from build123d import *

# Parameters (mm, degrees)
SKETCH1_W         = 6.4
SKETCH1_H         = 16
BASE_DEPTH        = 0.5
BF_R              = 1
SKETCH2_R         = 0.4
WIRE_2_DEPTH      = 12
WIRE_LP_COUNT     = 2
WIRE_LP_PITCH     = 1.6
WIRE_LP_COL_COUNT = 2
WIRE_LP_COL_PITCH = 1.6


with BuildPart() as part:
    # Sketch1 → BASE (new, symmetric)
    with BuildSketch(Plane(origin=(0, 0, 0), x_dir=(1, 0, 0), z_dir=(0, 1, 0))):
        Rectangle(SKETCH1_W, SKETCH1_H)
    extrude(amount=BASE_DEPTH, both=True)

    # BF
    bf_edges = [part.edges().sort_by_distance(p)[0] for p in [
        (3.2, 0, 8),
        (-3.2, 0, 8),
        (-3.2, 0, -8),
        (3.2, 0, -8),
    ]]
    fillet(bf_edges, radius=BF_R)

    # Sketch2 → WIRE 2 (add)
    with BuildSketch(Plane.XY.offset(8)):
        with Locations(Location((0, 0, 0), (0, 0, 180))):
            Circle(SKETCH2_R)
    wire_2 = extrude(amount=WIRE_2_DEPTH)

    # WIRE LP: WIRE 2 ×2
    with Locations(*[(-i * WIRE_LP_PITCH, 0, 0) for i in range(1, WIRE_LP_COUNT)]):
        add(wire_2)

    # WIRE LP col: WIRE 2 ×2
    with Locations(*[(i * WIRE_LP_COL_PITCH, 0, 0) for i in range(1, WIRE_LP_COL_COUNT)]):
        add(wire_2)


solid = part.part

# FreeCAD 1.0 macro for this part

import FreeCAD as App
import Part
import Sketcher
Q = App.Units.Quantity


def edges_at(feature, points):
    """Names of the edges that pass closest to the given points."""
    edges = feature.Shape.Edges
    near = lambda p: min(range(len(edges)), key=lambda i: edges[i].distToShape(Part.Vertex(*p))[0])
    return sorted({f"Edge{near(p) + 1}" for p in points})

doc = App.newDocument("Part")
body = doc.addObject("PartDesign::Body", "Body")

sketch1 = doc.addObject("Sketcher::SketchObject", "Sketch")
body.addObject(sketch1)
sketch1.AttachmentSupport = (doc.XZ_Plane, [""])
sketch1.MapMode = "FlatFace"
sketch1.addGeometry([
    Part.LineSegment(App.Vector(-3, -8, 0), App.Vector(-3, 8, 0)),
    Part.LineSegment(App.Vector(-3, 8, 0), App.Vector(3, 8, 0)),
    Part.LineSegment(App.Vector(3, 8, 0), App.Vector(3, -8, 0)),
    Part.LineSegment(App.Vector(3, -8, 0), App.Vector(-3, -8, 0)),
], False)
sketch1.addConstraint([
    Sketcher.Constraint("Coincident", 0, 2, 1, 1),
    Sketcher.Constraint("Coincident", 1, 2, 2, 1),
    Sketcher.Constraint("Coincident", 2, 2, 3, 1),
    Sketcher.Constraint("Coincident", 3, 2, 0, 1),
    Sketcher.Constraint("Vertical", 0),
    Sketcher.Constraint("Horizontal", 1),
    Sketcher.Constraint("Vertical", 2),
    Sketcher.Constraint("Horizontal", 3),
    Sketcher.Constraint("Symmetric", 0, 2, 2, 2, -1, 1),
    Sketcher.Constraint("DistanceY", 0, 1, 0, 2, Q("16 mm")),
    Sketcher.Constraint("DistanceX", 1, 1, 1, 2, Q("6.4 mm")),
])
pad1 = doc.addObject("PartDesign::Pad", "Pad")
body.addObject(pad1)
pad1.Profile = sketch1
pad1.Length = 1
pad1.Midplane = True
doc.recompute()

fillet = doc.addObject("PartDesign::Fillet", "Fillet")
body.addObject(fillet)
fillet.Base = (pad1, edges_at(pad1, [
    (3.2, 0, 8),
    (-3.2, 0, 8),
    (-3.2, 0, -8),
    (3.2, 0, -8),
]))
fillet.Radius = 1

sketch2 = doc.addObject("Sketcher::SketchObject", "Sketch001")
body.addObject(sketch2)
sketch2.AttachmentSupport = (doc.XY_Plane, [""])
sketch2.MapMode = "FlatFace"
sketch2.AttachmentOffset = App.Placement(App.Vector(0, 0, 8), App.Rotation())
sketch2.addGeometry(Part.Circle(App.Vector(0, 0, 0), App.Vector(0, 0, 1), 0.4), False)
sketch2.addConstraint([
    Sketcher.Constraint("Coincident", 0, 3, -1, 1),
    Sketcher.Constraint("Diameter", 0, Q("0.8 mm")),
])
pad2 = doc.addObject("PartDesign::Pad", "Pad001")
body.addObject(pad2)
pad2.Profile = sketch2
pad2.Length = 12
doc.recompute()

linearpattern = doc.addObject("PartDesign::LinearPattern", "LinearPattern")
body.addObject(linearpattern)
linearpattern.Originals = [pad2]
linearpattern.Direction = (doc.X_Axis, [""])
linearpattern.Mode = "offset"
linearpattern.Offset = 1.6
linearpattern.Occurrences = 2
linearpattern.Reversed = True
body.Tip = linearpattern
doc.recompute()

linearpattern2 = doc.addObject("PartDesign::LinearPattern", "LinearPattern001")
body.addObject(linearpattern2)
linearpattern2.Originals = [pad2]
linearpattern2.Direction = (doc.X_Axis, [""])
linearpattern2.Mode = "offset"
linearpattern2.Offset = 1.6
linearpattern2.Occurrences = 2
body.Tip = linearpattern2

doc.recompute()
